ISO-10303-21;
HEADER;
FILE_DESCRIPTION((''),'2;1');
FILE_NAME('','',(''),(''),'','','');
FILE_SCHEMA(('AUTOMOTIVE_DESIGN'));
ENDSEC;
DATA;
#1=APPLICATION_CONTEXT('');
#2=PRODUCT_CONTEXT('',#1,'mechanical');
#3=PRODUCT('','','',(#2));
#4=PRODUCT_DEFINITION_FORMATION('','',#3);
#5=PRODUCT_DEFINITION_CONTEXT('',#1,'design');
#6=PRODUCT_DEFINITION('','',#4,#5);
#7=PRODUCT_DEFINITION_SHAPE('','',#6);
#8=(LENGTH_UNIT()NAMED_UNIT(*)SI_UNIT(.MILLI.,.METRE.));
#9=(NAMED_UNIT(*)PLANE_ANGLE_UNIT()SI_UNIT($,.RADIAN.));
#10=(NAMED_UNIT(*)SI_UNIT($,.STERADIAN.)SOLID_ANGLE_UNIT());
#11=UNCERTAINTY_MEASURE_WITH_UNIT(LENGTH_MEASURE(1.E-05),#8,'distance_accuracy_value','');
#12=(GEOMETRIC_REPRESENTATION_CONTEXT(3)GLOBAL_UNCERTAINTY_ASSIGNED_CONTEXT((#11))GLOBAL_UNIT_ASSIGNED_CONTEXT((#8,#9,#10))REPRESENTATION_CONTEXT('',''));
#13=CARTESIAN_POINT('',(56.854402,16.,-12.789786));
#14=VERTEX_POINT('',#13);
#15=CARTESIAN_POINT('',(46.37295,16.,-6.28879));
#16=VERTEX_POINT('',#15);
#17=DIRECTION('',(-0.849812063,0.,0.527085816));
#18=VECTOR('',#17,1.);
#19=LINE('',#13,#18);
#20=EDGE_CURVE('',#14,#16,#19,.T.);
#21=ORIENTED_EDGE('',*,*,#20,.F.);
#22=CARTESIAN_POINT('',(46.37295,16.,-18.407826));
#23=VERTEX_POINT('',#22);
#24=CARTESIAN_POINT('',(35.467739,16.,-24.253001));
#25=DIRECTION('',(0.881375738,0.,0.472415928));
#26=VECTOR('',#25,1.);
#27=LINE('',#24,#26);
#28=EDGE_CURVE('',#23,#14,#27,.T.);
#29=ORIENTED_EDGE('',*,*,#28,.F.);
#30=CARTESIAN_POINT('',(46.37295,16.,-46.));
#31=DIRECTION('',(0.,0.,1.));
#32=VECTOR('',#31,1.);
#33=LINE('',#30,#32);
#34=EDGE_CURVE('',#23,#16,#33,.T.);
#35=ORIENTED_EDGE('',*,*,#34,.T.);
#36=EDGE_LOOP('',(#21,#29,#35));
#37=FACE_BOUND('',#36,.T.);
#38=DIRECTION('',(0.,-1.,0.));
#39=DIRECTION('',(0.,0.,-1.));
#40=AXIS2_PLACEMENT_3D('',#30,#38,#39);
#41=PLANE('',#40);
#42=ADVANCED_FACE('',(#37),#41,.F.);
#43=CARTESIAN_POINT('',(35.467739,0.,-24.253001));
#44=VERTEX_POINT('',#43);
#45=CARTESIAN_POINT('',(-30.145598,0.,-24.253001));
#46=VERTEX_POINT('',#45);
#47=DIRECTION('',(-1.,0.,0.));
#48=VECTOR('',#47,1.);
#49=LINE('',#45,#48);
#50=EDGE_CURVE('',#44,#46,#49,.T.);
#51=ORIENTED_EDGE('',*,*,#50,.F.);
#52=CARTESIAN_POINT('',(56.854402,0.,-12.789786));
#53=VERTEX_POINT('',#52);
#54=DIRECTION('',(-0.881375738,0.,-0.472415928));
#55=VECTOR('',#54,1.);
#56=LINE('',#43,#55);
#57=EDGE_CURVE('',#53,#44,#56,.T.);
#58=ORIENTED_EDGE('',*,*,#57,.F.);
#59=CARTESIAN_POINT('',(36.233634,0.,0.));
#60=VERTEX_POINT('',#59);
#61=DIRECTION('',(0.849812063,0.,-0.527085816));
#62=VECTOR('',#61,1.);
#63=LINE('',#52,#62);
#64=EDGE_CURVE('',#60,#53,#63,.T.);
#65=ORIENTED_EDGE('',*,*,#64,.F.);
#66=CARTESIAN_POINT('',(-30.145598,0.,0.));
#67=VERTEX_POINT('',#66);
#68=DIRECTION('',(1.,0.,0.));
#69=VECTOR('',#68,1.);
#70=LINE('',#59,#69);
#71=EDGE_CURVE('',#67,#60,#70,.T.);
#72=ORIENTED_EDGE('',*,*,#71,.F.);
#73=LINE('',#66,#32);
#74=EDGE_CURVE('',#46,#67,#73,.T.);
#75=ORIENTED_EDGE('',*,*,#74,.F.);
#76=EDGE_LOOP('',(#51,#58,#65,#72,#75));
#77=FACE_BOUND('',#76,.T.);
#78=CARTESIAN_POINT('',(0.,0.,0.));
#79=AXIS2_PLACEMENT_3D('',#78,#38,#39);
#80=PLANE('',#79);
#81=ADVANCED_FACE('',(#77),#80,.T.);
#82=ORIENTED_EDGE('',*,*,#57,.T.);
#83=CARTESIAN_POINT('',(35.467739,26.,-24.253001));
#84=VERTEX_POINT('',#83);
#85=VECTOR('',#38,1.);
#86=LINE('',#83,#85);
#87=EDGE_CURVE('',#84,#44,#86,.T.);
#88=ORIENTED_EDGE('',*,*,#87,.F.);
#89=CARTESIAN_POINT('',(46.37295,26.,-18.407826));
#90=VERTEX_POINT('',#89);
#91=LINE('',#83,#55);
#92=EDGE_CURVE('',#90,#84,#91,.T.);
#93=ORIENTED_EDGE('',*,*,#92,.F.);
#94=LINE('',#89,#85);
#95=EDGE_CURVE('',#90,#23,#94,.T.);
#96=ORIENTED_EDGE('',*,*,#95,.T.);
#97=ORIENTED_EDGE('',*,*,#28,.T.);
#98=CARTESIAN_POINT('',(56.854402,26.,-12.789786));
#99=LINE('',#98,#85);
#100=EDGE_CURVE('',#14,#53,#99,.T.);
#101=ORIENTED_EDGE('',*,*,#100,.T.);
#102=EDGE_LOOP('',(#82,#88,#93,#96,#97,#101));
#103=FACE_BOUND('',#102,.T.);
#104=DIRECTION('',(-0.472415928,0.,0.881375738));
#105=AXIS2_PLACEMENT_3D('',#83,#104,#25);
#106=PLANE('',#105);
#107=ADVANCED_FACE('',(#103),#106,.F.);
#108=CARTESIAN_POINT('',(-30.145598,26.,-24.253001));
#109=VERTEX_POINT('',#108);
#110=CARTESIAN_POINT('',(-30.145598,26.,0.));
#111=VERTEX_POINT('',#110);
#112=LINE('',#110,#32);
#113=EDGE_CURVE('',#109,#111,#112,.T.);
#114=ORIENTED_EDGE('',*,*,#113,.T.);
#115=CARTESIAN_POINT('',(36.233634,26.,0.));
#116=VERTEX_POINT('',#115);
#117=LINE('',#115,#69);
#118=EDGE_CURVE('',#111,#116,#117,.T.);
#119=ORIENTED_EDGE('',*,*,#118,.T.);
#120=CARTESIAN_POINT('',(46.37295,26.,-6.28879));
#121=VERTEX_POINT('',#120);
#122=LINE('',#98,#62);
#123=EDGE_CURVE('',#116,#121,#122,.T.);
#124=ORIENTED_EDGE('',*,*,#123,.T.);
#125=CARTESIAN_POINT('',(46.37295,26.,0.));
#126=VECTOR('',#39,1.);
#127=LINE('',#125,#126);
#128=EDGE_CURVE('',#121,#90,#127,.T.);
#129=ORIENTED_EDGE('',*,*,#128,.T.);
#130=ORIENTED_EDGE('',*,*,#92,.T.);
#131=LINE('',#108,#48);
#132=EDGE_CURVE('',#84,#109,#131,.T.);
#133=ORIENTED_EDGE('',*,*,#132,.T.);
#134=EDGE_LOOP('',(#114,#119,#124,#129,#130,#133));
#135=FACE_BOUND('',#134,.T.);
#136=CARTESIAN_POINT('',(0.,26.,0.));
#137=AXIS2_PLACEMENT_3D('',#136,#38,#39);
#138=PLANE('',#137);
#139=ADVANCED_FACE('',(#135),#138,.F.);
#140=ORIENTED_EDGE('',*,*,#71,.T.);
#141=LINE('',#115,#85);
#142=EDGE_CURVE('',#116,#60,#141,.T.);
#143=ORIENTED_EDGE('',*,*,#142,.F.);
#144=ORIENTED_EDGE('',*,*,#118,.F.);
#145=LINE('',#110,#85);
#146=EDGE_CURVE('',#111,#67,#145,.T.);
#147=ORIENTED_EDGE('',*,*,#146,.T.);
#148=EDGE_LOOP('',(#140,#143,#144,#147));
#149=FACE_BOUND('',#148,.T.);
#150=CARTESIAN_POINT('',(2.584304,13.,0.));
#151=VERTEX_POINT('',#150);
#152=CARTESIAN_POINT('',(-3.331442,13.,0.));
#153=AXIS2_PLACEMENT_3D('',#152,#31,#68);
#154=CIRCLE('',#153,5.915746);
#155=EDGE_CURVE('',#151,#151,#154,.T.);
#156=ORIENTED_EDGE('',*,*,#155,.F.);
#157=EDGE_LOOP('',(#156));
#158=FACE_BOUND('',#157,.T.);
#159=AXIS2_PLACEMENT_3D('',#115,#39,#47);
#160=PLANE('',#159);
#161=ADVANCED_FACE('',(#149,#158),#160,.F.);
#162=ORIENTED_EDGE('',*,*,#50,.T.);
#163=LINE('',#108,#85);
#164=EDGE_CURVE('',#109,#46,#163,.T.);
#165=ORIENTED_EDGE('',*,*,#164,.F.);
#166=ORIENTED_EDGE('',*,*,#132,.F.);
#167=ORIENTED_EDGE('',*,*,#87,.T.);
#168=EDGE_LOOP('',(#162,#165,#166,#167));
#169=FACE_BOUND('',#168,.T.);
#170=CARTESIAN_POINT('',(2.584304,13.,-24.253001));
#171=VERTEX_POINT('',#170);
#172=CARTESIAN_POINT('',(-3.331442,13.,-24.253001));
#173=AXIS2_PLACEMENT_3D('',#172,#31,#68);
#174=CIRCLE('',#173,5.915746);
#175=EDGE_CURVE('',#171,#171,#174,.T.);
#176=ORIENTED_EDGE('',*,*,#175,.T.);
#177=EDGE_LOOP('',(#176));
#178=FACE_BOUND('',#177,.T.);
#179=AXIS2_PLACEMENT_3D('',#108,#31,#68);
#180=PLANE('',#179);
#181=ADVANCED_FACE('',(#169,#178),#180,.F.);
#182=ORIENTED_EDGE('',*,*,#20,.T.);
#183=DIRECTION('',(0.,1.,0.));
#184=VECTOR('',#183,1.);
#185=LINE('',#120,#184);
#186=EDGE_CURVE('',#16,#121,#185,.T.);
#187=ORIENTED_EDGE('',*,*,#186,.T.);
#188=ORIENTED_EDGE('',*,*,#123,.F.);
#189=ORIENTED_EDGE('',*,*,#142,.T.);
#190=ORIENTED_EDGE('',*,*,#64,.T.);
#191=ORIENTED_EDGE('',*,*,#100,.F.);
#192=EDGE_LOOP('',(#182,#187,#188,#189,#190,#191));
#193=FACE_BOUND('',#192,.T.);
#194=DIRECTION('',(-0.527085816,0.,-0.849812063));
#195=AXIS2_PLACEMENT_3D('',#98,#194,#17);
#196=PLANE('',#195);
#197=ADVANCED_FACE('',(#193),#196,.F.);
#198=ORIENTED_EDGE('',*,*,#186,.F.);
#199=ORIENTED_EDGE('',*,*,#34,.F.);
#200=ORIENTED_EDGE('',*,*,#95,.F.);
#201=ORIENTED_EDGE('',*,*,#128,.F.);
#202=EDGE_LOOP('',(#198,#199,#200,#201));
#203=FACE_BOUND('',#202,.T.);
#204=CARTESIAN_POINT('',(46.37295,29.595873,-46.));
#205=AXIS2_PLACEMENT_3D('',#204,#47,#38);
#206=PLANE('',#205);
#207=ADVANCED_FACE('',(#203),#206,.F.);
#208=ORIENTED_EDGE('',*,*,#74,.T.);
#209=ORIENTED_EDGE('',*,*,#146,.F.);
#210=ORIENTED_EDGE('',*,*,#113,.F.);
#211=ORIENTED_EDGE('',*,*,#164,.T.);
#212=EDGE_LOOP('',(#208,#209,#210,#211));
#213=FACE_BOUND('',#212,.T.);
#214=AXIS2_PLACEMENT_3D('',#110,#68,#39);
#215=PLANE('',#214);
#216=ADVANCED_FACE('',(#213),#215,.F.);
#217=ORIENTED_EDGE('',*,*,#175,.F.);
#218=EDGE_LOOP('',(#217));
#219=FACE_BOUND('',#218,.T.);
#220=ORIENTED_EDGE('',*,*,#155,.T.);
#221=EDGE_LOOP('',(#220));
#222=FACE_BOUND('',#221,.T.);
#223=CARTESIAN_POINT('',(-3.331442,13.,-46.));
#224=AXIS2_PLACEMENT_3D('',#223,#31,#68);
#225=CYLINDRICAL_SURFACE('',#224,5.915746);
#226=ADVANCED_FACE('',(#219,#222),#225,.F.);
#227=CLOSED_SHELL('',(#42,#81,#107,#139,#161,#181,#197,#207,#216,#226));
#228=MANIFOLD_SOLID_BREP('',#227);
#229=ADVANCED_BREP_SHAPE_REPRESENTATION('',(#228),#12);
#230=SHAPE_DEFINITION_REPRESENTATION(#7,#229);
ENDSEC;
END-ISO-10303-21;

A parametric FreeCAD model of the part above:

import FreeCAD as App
import Part
import Sketcher


def add_polygon(sketch, points):
    """Adds a closed chain of lines whose ends are joined by coincident constraints."""
    first, n = sketch.GeometryCount, len(points)
    for a, b in zip(points, points[1:] + points[:1]):
        sketch.addGeometry(Part.LineSegment(App.Vector(*a, 0), App.Vector(*b, 0)), False)
    for i in range(n):
        sketch.addConstraint(Sketcher.Constraint("Coincident", first + i, 2, first + (i + 1) % n, 1))

doc = App.newDocument("Part")
body = doc.addObject("PartDesign::Body", "Body")

# Sketch on XZ plane
sketch1 = doc.addObject("Sketcher::SketchObject", "Sketch")
body.addObject(sketch1)
sketch1.AttachmentSupport = (doc.XZ_Plane, [""])
sketch1.MapMode = "FlatFace"
add_polygon(sketch1, [(-30, -24), (-30, 0), (36, 0), (57, -13), (35, -24)])  # lines 0-4
sketch1.addConstraint([
    Sketcher.Constraint("Vertical", 0),
    Sketcher.Constraint("Horizontal", 1),
    Sketcher.Constraint("Horizontal", 4),
    Sketcher.Constraint("PointOnObject", 0, 2, -1),
    Sketcher.Constraint("Equal", 2, 3),
    Sketcher.Constraint("DistanceX", 0, 2, 2, 2, 87.0),
    Sketcher.Constraint("DistanceY", 0, 1, 0, 2, 24.253001),
    Sketcher.Constraint("DistanceX", 0, 2, -1, 1, 30.145598),
    Sketcher.Constraint("Distance", 2, 24.265092),
    Sketcher.Constraint("DistanceX", 1, 1, 1, 2, 66.379233),
])
pad1 = doc.addObject("PartDesign::Pad", "Pad")
body.addObject(pad1)
pad1.Profile = sketch1
pad1.Length = 26
pad1.Reversed = True

# Sketch on XY plane
sketch2 = doc.addObject("Sketcher::SketchObject", "Sketch001")
body.addObject(sketch2)
sketch2.AttachmentSupport = (doc.XY_Plane, [""])
sketch2.MapMode = "FlatFace"
sketch2.addGeometry(Part.Circle(App.Vector(-3, 13, 0), App.Vector(0, 0, 1), 6), False)  # 0
add_polygon(sketch2, [(46, 30), (46, 16), (71, 16), (71, 30)])  # lines 1-4
sketch2.addConstraint([
    Sketcher.Constraint("Vertical", 1),
    Sketcher.Constraint("Horizontal", 2),
    Sketcher.Constraint("Vertical", 3),
    Sketcher.Constraint("Horizontal", 4),
    Sketcher.Constraint("DistanceY", -1, 1, 0, 3, 13.0),
    Sketcher.Constraint("DistanceY", -1, 1, 1, 2, 16.0),
    Sketcher.Constraint("Diameter", 0, 11.831493),
    Sketcher.Constraint("DistanceX", 2, 1, 2, 2, 24.366629),
    Sketcher.Constraint("DistanceY", 1, 2, 1, 1, 13.595873),
    Sketcher.Constraint("DistanceX", 0, 3, -1, 1, 3.331442),
    Sketcher.Constraint("DistanceX", -1, 1, 1, 2, 46.37295),
])
pocket1 = doc.addObject("PartDesign::Pocket", "Pocket")
body.addObject(pocket1)
pocket1.Profile = sketch2
pocket1.Length = 46

doc.recompute()
